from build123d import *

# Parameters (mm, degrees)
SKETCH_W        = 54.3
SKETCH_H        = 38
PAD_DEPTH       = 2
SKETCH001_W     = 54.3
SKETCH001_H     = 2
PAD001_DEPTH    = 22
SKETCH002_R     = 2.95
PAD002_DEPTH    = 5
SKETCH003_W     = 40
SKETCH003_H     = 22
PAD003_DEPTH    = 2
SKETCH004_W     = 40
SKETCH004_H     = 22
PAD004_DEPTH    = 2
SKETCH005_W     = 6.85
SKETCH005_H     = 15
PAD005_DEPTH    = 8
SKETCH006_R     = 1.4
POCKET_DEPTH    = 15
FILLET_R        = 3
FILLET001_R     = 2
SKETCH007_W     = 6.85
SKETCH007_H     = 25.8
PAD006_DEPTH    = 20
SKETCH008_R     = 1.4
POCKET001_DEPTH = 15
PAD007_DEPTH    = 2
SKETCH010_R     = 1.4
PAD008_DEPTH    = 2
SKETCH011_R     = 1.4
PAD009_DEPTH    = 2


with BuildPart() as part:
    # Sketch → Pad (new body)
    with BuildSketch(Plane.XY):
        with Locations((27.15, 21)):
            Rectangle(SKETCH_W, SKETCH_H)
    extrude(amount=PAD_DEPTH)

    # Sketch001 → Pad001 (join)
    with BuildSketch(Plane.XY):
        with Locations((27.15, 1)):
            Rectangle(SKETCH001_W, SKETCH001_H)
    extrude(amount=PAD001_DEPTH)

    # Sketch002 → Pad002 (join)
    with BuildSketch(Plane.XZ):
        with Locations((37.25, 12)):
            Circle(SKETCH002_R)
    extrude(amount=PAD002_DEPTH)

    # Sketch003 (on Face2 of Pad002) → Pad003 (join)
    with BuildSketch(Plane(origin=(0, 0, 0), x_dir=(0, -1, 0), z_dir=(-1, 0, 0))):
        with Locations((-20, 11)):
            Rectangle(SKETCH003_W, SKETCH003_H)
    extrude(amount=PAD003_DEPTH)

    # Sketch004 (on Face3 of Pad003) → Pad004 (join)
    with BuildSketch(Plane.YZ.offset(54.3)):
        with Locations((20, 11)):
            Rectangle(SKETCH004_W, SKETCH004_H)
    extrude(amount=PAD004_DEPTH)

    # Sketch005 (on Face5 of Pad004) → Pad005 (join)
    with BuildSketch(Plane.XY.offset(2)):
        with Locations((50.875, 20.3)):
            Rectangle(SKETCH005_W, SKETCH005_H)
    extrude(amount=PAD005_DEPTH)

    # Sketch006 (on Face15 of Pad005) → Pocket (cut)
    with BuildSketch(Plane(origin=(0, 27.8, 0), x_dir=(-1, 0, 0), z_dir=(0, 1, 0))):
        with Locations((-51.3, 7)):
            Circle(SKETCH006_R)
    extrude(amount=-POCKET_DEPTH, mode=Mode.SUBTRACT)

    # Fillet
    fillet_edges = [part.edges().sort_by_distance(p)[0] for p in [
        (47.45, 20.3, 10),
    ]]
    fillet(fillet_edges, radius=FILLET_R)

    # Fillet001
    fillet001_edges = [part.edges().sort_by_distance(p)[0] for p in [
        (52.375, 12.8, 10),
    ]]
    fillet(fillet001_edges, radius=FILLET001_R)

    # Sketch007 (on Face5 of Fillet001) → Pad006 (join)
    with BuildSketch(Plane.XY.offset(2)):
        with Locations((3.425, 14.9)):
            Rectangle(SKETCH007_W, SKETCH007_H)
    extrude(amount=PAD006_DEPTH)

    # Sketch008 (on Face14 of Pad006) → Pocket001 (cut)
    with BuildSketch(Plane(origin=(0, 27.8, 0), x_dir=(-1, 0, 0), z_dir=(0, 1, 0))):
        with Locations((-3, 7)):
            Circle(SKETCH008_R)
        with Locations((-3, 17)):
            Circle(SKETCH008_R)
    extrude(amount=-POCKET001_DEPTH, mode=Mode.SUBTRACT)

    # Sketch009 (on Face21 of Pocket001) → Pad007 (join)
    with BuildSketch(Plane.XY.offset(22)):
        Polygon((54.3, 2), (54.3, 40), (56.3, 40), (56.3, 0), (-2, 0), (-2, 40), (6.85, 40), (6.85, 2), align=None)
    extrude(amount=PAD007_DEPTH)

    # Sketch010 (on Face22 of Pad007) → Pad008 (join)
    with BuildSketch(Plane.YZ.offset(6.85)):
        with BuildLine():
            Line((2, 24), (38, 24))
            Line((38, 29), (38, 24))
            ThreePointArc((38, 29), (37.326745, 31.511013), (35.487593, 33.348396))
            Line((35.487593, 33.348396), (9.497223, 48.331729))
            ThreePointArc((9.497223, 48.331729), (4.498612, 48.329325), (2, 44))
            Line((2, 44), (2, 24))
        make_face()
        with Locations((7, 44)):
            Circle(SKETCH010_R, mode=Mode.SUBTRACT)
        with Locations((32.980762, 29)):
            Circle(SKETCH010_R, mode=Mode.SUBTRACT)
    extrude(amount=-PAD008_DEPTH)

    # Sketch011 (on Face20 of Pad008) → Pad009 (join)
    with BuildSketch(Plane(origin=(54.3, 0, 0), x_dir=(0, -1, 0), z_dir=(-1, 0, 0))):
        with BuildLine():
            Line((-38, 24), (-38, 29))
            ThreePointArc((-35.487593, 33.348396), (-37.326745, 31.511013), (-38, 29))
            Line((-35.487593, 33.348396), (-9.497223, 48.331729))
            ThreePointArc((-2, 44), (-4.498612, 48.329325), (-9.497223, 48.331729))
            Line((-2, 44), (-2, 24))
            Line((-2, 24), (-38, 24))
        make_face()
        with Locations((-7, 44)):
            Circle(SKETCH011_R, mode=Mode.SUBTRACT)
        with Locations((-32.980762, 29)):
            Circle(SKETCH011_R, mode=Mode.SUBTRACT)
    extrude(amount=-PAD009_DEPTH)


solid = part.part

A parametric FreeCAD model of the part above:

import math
import FreeCAD as App
import Part
import Sketcher
from FreeCAD import Vector
Q = App.Units.Quantity


def edges_at(feature, points):
    """Names of the edges that pass closest to the given points."""
    edges = feature.Shape.Edges
    near = lambda p: min(range(len(edges)), key=lambda i: edges[i].distToShape(Part.Vertex(*p))[0])
    return sorted({f"Edge{near(p) + 1}" for p in points})

doc = App.newDocument("Part")
body = doc.addObject("PartDesign::Body", "Body")

# Sketch on XY plane
sketch1 = body.newObject("Sketcher::SketchObject", "Sketch")
sketch1.AttachmentSupport = (doc.getObject("XY_Plane"), [""])
sketch1.MapMode = "FlatFace"
sketch1.addGeometry(Part.LineSegment(Vector(0, 40, 0), Vector(0, 2, 0)), False)
sketch1.addGeometry(Part.LineSegment(Vector(0, 2, 0), Vector(54, 2, 0)), False)
sketch1.addGeometry(Part.LineSegment(Vector(54, 2, 0), Vector(54, 40, 0)), False)
sketch1.addGeometry(Part.LineSegment(Vector(54, 40, 0), Vector(0, 40, 0)), False)
sketch1.addConstraint(Sketcher.Constraint("Coincident", 0, 2, 1, 1))
sketch1.addConstraint(Sketcher.Constraint("Coincident", 1, 2, 2, 1))
sketch1.addConstraint(Sketcher.Constraint("Coincident", 2, 2, 3, 1))
sketch1.addConstraint(Sketcher.Constraint("Coincident", 3, 2, 0, 1))
sketch1.addConstraint(Sketcher.Constraint("Vertical", 0))
sketch1.addConstraint(Sketcher.Constraint("Horizontal", 1))
sketch1.addConstraint(Sketcher.Constraint("Vertical", 2))
sketch1.addConstraint(Sketcher.Constraint("Horizontal", 3))
sketch1.addConstraint(Sketcher.Constraint("PointOnObject", 0, 2, -2))
sketch1.addConstraint(Sketcher.Constraint("DistanceY", 0, 2, 0, 1, Q("38 mm")))
sketch1.addConstraint(Sketcher.Constraint("DistanceX", 1, 1, 1, 2, Q("54.3 mm")))
sketch1.addConstraint(Sketcher.Constraint("DistanceY", -1, 1, 0, 2, Q("2 mm")))
pad1 = body.newObject("PartDesign::Pad", "Pad")
pad1.Profile = sketch1
pad1.Length = 2

# Sketch on XY plane
sketch2 = body.newObject("Sketcher::SketchObject", "Sketch001")
sketch2.AttachmentSupport = (doc.getObject("XY_Plane"), [""])
sketch2.MapMode = "FlatFace"
sketch2.addGeometry(Part.LineSegment(Vector(0, 2, 0), Vector(0, 0, 0)), False)
sketch2.addGeometry(Part.LineSegment(Vector(0, 0, 0), Vector(54.3, 0, 0)), False)
sketch2.addGeometry(Part.LineSegment(Vector(54.3, 0, 0), Vector(54.3, 2, 0)), False)
sketch2.addGeometry(Part.LineSegment(Vector(54.3, 2, 0), Vector(0, 2, 0)), False)
sketch2.addConstraint(Sketcher.Constraint("Coincident", 0, 2, 1, 1))
sketch2.addConstraint(Sketcher.Constraint("Coincident", 1, 2, 2, 1))
sketch2.addConstraint(Sketcher.Constraint("Coincident", 2, 2, 3, 1))
sketch2.addConstraint(Sketcher.Constraint("Coincident", 3, 2, 0, 1))
sketch2.addConstraint(Sketcher.Constraint("Vertical", 0))
sketch2.addConstraint(Sketcher.Constraint("Horizontal", 1))
sketch2.addConstraint(Sketcher.Constraint("Vertical", 2))
sketch2.addConstraint(Sketcher.Constraint("Horizontal", 3))
sketch2.addConstraint(Sketcher.Constraint("Coincident", 0, 2, -1, 1))
sketch2.addConstraint(Sketcher.Constraint("DistanceY", 0, 2, 0, 1, Q("2 mm")))
sketch2.addConstraint(Sketcher.Constraint("DistanceX", 1, 1, 1, 2, Q("54.3 mm")))
pad2 = body.newObject("PartDesign::Pad", "Pad001")
pad2.Profile = sketch2
pad2.Length = 22

# Sketch on XZ plane
sketch3 = body.newObject("Sketcher::SketchObject", "Sketch002")
sketch3.AttachmentSupport = (doc.getObject("XZ_Plane"), [""])
sketch3.MapMode = "FlatFace"
sketch3.addGeometry(Part.Circle(Vector(37.2, 12, 0), Vector(0, 0, 1), 3), False)
sketch3.addConstraint(Sketcher.Constraint("Diameter", 0, Q("5.9 mm")))
sketch3.addConstraint(Sketcher.Constraint("DistanceY", -1, 1, 0, 3, Q("12 mm")))
sketch3.addConstraint(Sketcher.Constraint("DistanceX", -1, 1, 0, 3, Q("37.25 mm")))
pad3 = body.newObject("PartDesign::Pad", "Pad002")
pad3.Profile = sketch3
pad3.Length = 5

# Sketch on YZ plane
sketch4 = body.newObject("Sketcher::SketchObject", "Sketch003")
sketch4.AttachmentSupport = (doc.getObject("YZ_Plane"), [""])
sketch4.MapMode = "FlatFace"
sketch4.addGeometry(Part.LineSegment(Vector(40, 22, 0), Vector(40, 0, 0)), False)
sketch4.addGeometry(Part.LineSegment(Vector(40, 0, 0), Vector(0, 0, 0)), False)
sketch4.addGeometry(Part.LineSegment(Vector(0, 0, 0), Vector(0, 22, 0)), False)
sketch4.addGeometry(Part.LineSegment(Vector(0, 22, 0), Vector(40, 22, 0)), False)
sketch4.addConstraint(Sketcher.Constraint("Coincident", 0, 2, 1, 1))
sketch4.addConstraint(Sketcher.Constraint("Coincident", 1, 2, 2, 1))
sketch4.addConstraint(Sketcher.Constraint("Coincident", 2, 2, 3, 1))
sketch4.addConstraint(Sketcher.Constraint("Coincident", 3, 2, 0, 1))
sketch4.addConstraint(Sketcher.Constraint("Vertical", 0))
sketch4.addConstraint(Sketcher.Constraint("Horizontal", 1))
sketch4.addConstraint(Sketcher.Constraint("Vertical", 2))
sketch4.addConstraint(Sketcher.Constraint("Horizontal", 3))
sketch4.addConstraint(Sketcher.Constraint("Coincident", 1, 2, -1, 1))
sketch4.addConstraint(Sketcher.Constraint("DistanceX", 1, 2, 1, 1, Q("40 mm")))
sketch4.addConstraint(Sketcher.Constraint("DistanceY", 0, 2, 0, 1, Q("22 mm")))
pad4 = body.newObject("PartDesign::Pad", "Pad003")
pad4.Profile = sketch4
pad4.Length = 2
pad4.Reversed = True

# Sketch on YZ plane
sketch5 = body.newObject("Sketcher::SketchObject", "Sketch004")
sketch5.AttachmentSupport = (doc.getObject("YZ_Plane"), [""])
sketch5.MapMode = "FlatFace"
sketch5.AttachmentOffset = App.Placement(Vector(0, 0, 54.3), App.Rotation())
sketch5.addGeometry(Part.LineSegment(Vector(0, 22, 0), Vector(0, 0, 0)), False)
sketch5.addGeometry(Part.LineSegment(Vector(0, 0, 0), Vector(40, 0, 0)), False)
sketch5.addGeometry(Part.LineSegment(Vector(40, 0, 0), Vector(40, 22, 0)), False)
sketch5.addGeometry(Part.LineSegment(Vector(40, 22, 0), Vector(0, 22, 0)), False)
sketch5.addConstraint(Sketcher.Constraint("Coincident", 0, 2, 1, 1))
sketch5.addConstraint(Sketcher.Constraint("Coincident", 1, 2, 2, 1))
sketch5.addConstraint(Sketcher.Constraint("Coincident", 2, 2, 3, 1))
sketch5.addConstraint(Sketcher.Constraint("Coincident", 3, 2, 0, 1))
sketch5.addConstraint(Sketcher.Constraint("Vertical", 0))
sketch5.addConstraint(Sketcher.Constraint("Horizontal", 1))
sketch5.addConstraint(Sketcher.Constraint("Vertical", 2))
sketch5.addConstraint(Sketcher.Constraint("Horizontal", 3))
sketch5.addConstraint(Sketcher.Constraint("Coincident", 0, 2, -1, 1))
sketch5.addConstraint(Sketcher.Constraint("DistanceX", 1, 1, 1, 2, Q("40 mm")))
sketch5.addConstraint(Sketcher.Constraint("DistanceY", 0, 2, 0, 1, Q("22 mm")))
pad5 = body.newObject("PartDesign::Pad", "Pad004")
pad5.Profile = sketch5
pad5.Length = 2

# Sketch on XY plane
sketch6 = body.newObject("Sketcher::SketchObject", "Sketch005")
sketch6.AttachmentSupport = (doc.getObject("XY_Plane"), [""])
sketch6.MapMode = "FlatFace"
sketch6.AttachmentOffset = App.Placement(Vector(0, 0, 2), App.Rotation())
sketch6.addGeometry(Part.LineSegment(Vector(47, 28, 0), Vector(47, 13, 0)), False)
sketch6.addGeometry(Part.LineSegment(Vector(47, 13, 0), Vector(54, 13, 0)), False)
sketch6.addGeometry(Part.LineSegment(Vector(54, 13, 0), Vector(54, 28, 0)), False)
sketch6.addGeometry(Part.LineSegment(Vector(54, 28, 0), Vector(47, 28, 0)), False)
sketch6.addConstraint(Sketcher.Constraint("Coincident", 0, 2, 1, 1))
sketch6.addConstraint(Sketcher.Constraint("Coincident", 1, 2, 2, 1))
sketch6.addConstraint(Sketcher.Constraint("Coincident", 2, 2, 3, 1))
sketch6.addConstraint(Sketcher.Constraint("Coincident", 3, 2, 0, 1))
sketch6.addConstraint(Sketcher.Constraint("Vertical", 0))
sketch6.addConstraint(Sketcher.Constraint("Horizontal", 1))
sketch6.addConstraint(Sketcher.Constraint("Vertical", 2))
sketch6.addConstraint(Sketcher.Constraint("Horizontal", 3))
sketch6.addConstraint(Sketcher.Constraint("DistanceY", 0, 2, 0, 1, Q("15 mm")))
sketch6.addConstraint(Sketcher.Constraint("DistanceX", 1, 1, 1, 2, Q("6.85 mm")))
sketch6.addConstraint(Sketcher.Constraint("DistanceY", -1, 1, 0, 2, Q("12.8 mm")))
sketch6.addConstraint(Sketcher.Constraint("DistanceX", -1, 1, 1, 2, Q("54.3 mm")))
pad6 = body.newObject("PartDesign::Pad", "Pad005")
pad6.Profile = sketch6
pad6.Length = 8

# Sketch on XZ plane
sketch7 = body.newObject("Sketcher::SketchObject", "Sketch006")
sketch7.AttachmentSupport = (doc.getObject("XZ_Plane"), [""])
sketch7.MapMode = "FlatFace"
sketch7.AttachmentOffset = App.Placement(Vector(0, 0, -27.8), App.Rotation())
sketch7.addGeometry(Part.Circle(Vector(51.3, 7, 0), Vector(0, 0, 1), 1.4), False)
sketch7.addConstraint(Sketcher.Constraint("Diameter", 0, Q("2.8 mm")))
sketch7.addConstraint(Sketcher.Constraint("DistanceY", -1, 1, 0, 3, Q("7 mm")))
sketch7.addConstraint(Sketcher.Constraint("DistanceX", -1, 1, 0, 3, Q("51.3 mm")))
pocket1 = body.newObject("PartDesign::Pocket", "Pocket")
pocket1.Profile = sketch7
pocket1.Length = 15
pocket1.Reversed = True
doc.recompute()

fillet = body.newObject("PartDesign::Fillet", "Fillet")
fillet.Base = (pocket1, edges_at(pocket1, [(47.45, 20.3, 10)]))
fillet.Radius = 3
doc.recompute()

fillet2 = body.newObject("PartDesign::Fillet", "Fillet001")
fillet2.Base = (fillet, edges_at(fillet, [(52.375, 12.8, 10)]))
fillet2.Radius = 2

# Sketch on XY plane
sketch8 = body.newObject("Sketcher::SketchObject", "Sketch007")
sketch8.AttachmentSupport = (doc.getObject("XY_Plane"), [""])
sketch8.MapMode = "FlatFace"
sketch8.AttachmentOffset = App.Placement(Vector(0, 0, 2), App.Rotation())
sketch8.addGeometry(Part.LineSegment(Vector(0, 28, 0), Vector(0, 2, 0)), False)
sketch8.addGeometry(Part.LineSegment(Vector(0, 2, 0), Vector(7, 2, 0)), False)
sketch8.addGeometry(Part.LineSegment(Vector(7, 2, 0), Vector(7, 28, 0)), False)
sketch8.addGeometry(Part.LineSegment(Vector(7, 28, 0), Vector(0, 28, 0)), False)
sketch8.addConstraint(Sketcher.Constraint("Coincident", 0, 2, 1, 1))
sketch8.addConstraint(Sketcher.Constraint("Coincident", 1, 2, 2, 1))
sketch8.addConstraint(Sketcher.Constraint("Coincident", 2, 2, 3, 1))
sketch8.addConstraint(Sketcher.Constraint("Coincident", 3, 2, 0, 1))
sketch8.addConstraint(Sketcher.Constraint("Vertical", 0))
sketch8.addConstraint(Sketcher.Constraint("Horizontal", 1))
sketch8.addConstraint(Sketcher.Constraint("Vertical", 2))
sketch8.addConstraint(Sketcher.Constraint("Horizontal", 3))
sketch8.addConstraint(Sketcher.Constraint("PointOnObject", 0, 2, -2))
sketch8.addConstraint(Sketcher.Constraint("DistanceY", 0, 2, 0, 1, Q("25.8 mm")))
sketch8.addConstraint(Sketcher.Constraint("DistanceY", -1, 1, 0, 2, Q("2 mm")))
sketch8.addConstraint(Sketcher.Constraint("DistanceX", 1, 1, 1, 2, Q("6.85 mm")))
pad7 = body.newObject("PartDesign::Pad", "Pad006")
pad7.Profile = sketch8
pad7.Length = 20

# Sketch on XZ plane
sketch9 = body.newObject("Sketcher::SketchObject", "Sketch008")
sketch9.AttachmentSupport = (doc.getObject("XZ_Plane"), [""])
sketch9.MapMode = "FlatFace"
sketch9.AttachmentOffset = App.Placement(Vector(0, 0, -27.8), App.Rotation())
sketch9.addGeometry(Part.Circle(Vector(3, 7, 0), Vector(0, 0, 1), 1.4), False)
sketch9.addGeometry(Part.Circle(Vector(3, 17, 0), Vector(0, 0, 1), 1.4), False)
sketch9.addConstraint(Sketcher.Constraint("Equal", 0, 1))
sketch9.addConstraint(Sketcher.Constraint("Vertical", 0, 3, 1, 3))
sketch9.addConstraint(Sketcher.Constraint("Diameter", 0, Q("2.8 mm")))
sketch9.addConstraint(Sketcher.Constraint("DistanceX", -1, 1, 0, 3, Q("3 mm")))
sketch9.addConstraint(Sketcher.Constraint("DistanceY", -1, 1, 0, 3, Q("7 mm")))
sketch9.addConstraint(Sketcher.Constraint("DistanceY", -1, 1, 1, 3, Q("17 mm")))
pocket2 = body.newObject("PartDesign::Pocket", "Pocket001")
pocket2.Profile = sketch9
pocket2.Length = 15
pocket2.Reversed = True

# Sketch on XY plane
sketch10 = body.newObject("Sketcher::SketchObject", "Sketch009")
sketch10.AttachmentSupport = (doc.getObject("XY_Plane"), [""])
sketch10.MapMode = "FlatFace"
sketch10.AttachmentOffset = App.Placement(Vector(0, 0, 22), App.Rotation())
sketch10.addGeometry(Part.LineSegment(Vector(54.3, 40, 0), Vector(54.3, 2, 0)), False)
sketch10.addGeometry(Part.LineSegment(Vector(54.3, 2, 0), Vector(6.8, 2, 0)), False)
sketch10.addGeometry(Part.LineSegment(Vector(6.8, 2, 0), Vector(6.8, 40, 0)), False)
sketch10.addGeometry(Part.LineSegment(Vector(6.8, 40, 0), Vector(-2, 40, 0)), False)
sketch10.addGeometry(Part.LineSegment(Vector(-2, 40, 0), Vector(-2, 0, 0)), False)
sketch10.addGeometry(Part.LineSegment(Vector(-2, 0, 0), Vector(56.3, 0, 0)), False)
sketch10.addGeometry(Part.LineSegment(Vector(56.3, 0, 0), Vector(56.3, 40, 0)), False)
sketch10.addGeometry(Part.LineSegment(Vector(56.3, 40, 0), Vector(54.3, 40, 0)), False)
sketch10.addConstraint(Sketcher.Constraint("Coincident", 0, 2, 1, 1))
sketch10.addConstraint(Sketcher.Constraint("Coincident", 1, 2, 2, 1))
sketch10.addConstraint(Sketcher.Constraint("Coincident", 2, 2, 3, 1))
sketch10.addConstraint(Sketcher.Constraint("Coincident", 3, 2, 4, 1))
sketch10.addConstraint(Sketcher.Constraint("Coincident", 4, 2, 5, 1))
sketch10.addConstraint(Sketcher.Constraint("Coincident", 5, 2, 6, 1))
sketch10.addConstraint(Sketcher.Constraint("Coincident", 6, 2, 7, 1))
sketch10.addConstraint(Sketcher.Constraint("Coincident", 7, 2, 0, 1))
sketch10.addConstraint(Sketcher.Constraint("Vertical", 0))
sketch10.addConstraint(Sketcher.Constraint("Horizontal", 1))
sketch10.addConstraint(Sketcher.Constraint("Vertical", 2))
sketch10.addConstraint(Sketcher.Constraint("Horizontal", 3))
sketch10.addConstraint(Sketcher.Constraint("Vertical", 4))
sketch10.addConstraint(Sketcher.Constraint("Horizontal", 5))
sketch10.addConstraint(Sketcher.Constraint("Vertical", 6))
sketch10.addConstraint(Sketcher.Constraint("Horizontal", 7))
sketch10.addConstraint(Sketcher.Constraint("PointOnObject", 4, 2, -1))
sketch10.addConstraint(Sketcher.Constraint("Horizontal", 3, 2, 6, 2))
sketch10.addConstraint(Sketcher.Constraint("DistanceX", 7, 2, 7, 1, Q("2 mm")))
sketch10.addConstraint(Sketcher.Constraint("DistanceY", 0, 2, 0, 1, Q("38 mm")))
sketch10.addConstraint(Sketcher.Constraint("DistanceY", 4, 2, 4, 1, Q("40 mm")))
sketch10.addConstraint(Sketcher.Constraint("DistanceX", 5, 1, 5, 2, Q("58.3 mm")))
sketch10.addConstraint(Sketcher.Constraint("DistanceX", 3, 2, -1, 1, Q("2 mm")))
sketch10.addConstraint(Sketcher.Constraint("DistanceX", 1, 2, 1, 1, Q("47.45 mm")))
pad8 = body.newObject("PartDesign::Pad", "Pad007")
pad8.Profile = sketch10
pad8.Length = 2

# Sketch on YZ plane
sketch11 = body.newObject("Sketcher::SketchObject", "Sketch010")
sketch11.AttachmentSupport = (doc.getObject("YZ_Plane"), [""])
sketch11.MapMode = "FlatFace"
sketch11.AttachmentOffset = App.Placement(Vector(0, 0, 6.85), App.Rotation())
sketch11.addGeometry(Part.LineSegment(Vector(2, 24, 0), Vector(38, 24, 0)), False)
sketch11.addGeometry(Part.LineSegment(Vector(38, 24, 0), Vector(38, 29, 0)), False)
sketch11.addGeometry(Part.ArcOfCircle(Part.Circle(Vector(33, 29, 0), Vector(0, 0, 1), 5), math.radians(0), math.radians(60)), False)
sketch11.addGeometry(Part.LineSegment(Vector(35.5, 33.3, 0), Vector(9.5, 48.3, 0)), False)
sketch11.addGeometry(Part.ArcOfCircle(Part.Circle(Vector(7, 44, 0), Vector(0, 0, 1), 5), math.radians(60), math.radians(180)), False)
sketch11.addGeometry(Part.LineSegment(Vector(2, 44, 0), Vector(2, 24, 0)), False)
sketch11.addGeometry(Part.Circle(Vector(33, 29, 0), Vector(0, 0, 1), 1.4), False)
sketch11.addGeometry(Part.Circle(Vector(7, 44, 0), Vector(0, 0, 1), 1.4), False)
sketch11.addConstraint(Sketcher.Constraint("Coincident", 0, 2, 1, 1))
sketch11.addConstraint(Sketcher.Constraint("Tangent", 1, 2, 2, 1))
sketch11.addConstraint(Sketcher.Constraint("Tangent", 2, 2, 3, 1))
sketch11.addConstraint(Sketcher.Constraint("Tangent", 3, 2, 4, 1))
sketch11.addConstraint(Sketcher.Constraint("Tangent", 4, 2, 5, 1))
sketch11.addConstraint(Sketcher.Constraint("Coincident", 5, 2, 0, 1))
sketch11.addConstraint(Sketcher.Constraint("Horizontal", 0))
sketch11.addConstraint(Sketcher.Constraint("Vertical", 1))
sketch11.addConstraint(Sketcher.Constraint("Vertical", 5))
sketch11.addConstraint(Sketcher.Constraint("Coincident", 6, 3, 2, 3))
sketch11.addConstraint(Sketcher.Constraint("Coincident", 7, 3, 4, 3))
sketch11.addConstraint(Sketcher.Constraint("Equal", 6, 7))
sketch11.addConstraint(Sketcher.Constraint("Radius", 4, Q("5 mm")))
sketch11.addConstraint(Sketcher.Constraint("Diameter", 6, Q("2.8 mm")))
sketch11.addConstraint(Sketcher.Constraint("DistanceX", 0, 1, 0, 2, Q("36 mm")))
sketch11.addConstraint(Sketcher.Constraint("DistanceY", 1, 1, 1, 2, Q("5 mm")))
sketch11.addConstraint(Sketcher.Constraint("DistanceY", 5, 2, 5, 1, Q("20 mm")))
sketch11.addConstraint(Sketcher.Constraint("DistanceY", -1, 1, 2, 3, Q("29.000002 mm")))
sketch11.addConstraint(Sketcher.Constraint("DistanceX", -1, 1, 4, 3, Q("7 mm")))
sketch11.addConstraint(Sketcher.Constraint("Radius", 2, Q("5.019235 mm")))
pad9 = body.newObject("PartDesign::Pad", "Pad008")
pad9.Profile = sketch11
pad9.Length = 2
pad9.Reversed = True

# Sketch on YZ plane
sketch12 = body.newObject("Sketcher::SketchObject", "Sketch011")
sketch12.AttachmentSupport = (doc.getObject("YZ_Plane"), [""])
sketch12.MapMode = "FlatFace"
sketch12.AttachmentOffset = App.Placement(Vector(0, 0, 54.3), App.Rotation())
sketch12.addGeometry(Part.LineSegment(Vector(38, 29, 0), Vector(38, 24, 0)), False)
sketch12.addGeometry(Part.LineSegment(Vector(38, 24, 0), Vector(2, 24, 0)), False)
sketch12.addGeometry(Part.LineSegment(Vector(2, 24, 0), Vector(2, 44, 0)), False)
sketch12.addGeometry(Part.ArcOfCircle(Part.Circle(Vector(7, 44, 0), Vector(0, 0, 1), 5), math.radians(60), math.radians(180)), False)
sketch12.addGeometry(Part.LineSegment(Vector(9.5, 48.3, 0), Vector(35.5, 33.3, 0)), False)
sketch12.addGeometry(Part.ArcOfCircle(Part.Circle(Vector(33, 29, 0), Vector(0, 0, 1), 5), math.radians(0), math.radians(60)), False)
sketch12.addGeometry(Part.Circle(Vector(33, 29, 0), Vector(0, 0, 1), 1.4), False)
sketch12.addGeometry(Part.Circle(Vector(7, 44, 0), Vector(0, 0, 1), 1.4), False)
sketch12.addConstraint(Sketcher.Constraint("Coincident", 0, 2, 1, 1))
sketch12.addConstraint(Sketcher.Constraint("Coincident", 1, 2, 2, 1))
sketch12.addConstraint(Sketcher.Constraint("Tangent", 2, 2, 3, 2))
sketch12.addConstraint(Sketcher.Constraint("Tangent", 3, 1, 4, 1))
sketch12.addConstraint(Sketcher.Constraint("Tangent", 4, 2, 5, 2))
sketch12.addConstraint(Sketcher.Constraint("Tangent", 5, 1, 0, 1))
sketch12.addConstraint(Sketcher.Constraint("Vertical", 0))
sketch12.addConstraint(Sketcher.Constraint("Horizontal", 1))
sketch12.addConstraint(Sketcher.Constraint("Vertical", 2))
sketch12.addConstraint(Sketcher.Constraint("Coincident", 6, 3, 5, 3))
sketch12.addConstraint(Sketcher.Constraint("Coincident", 7, 3, 3, 3))
sketch12.addConstraint(Sketcher.Constraint("Equal", 6, 7))
sketch12.addConstraint(Sketcher.Constraint("Radius", 3, Q("5 mm")))
sketch12.addConstraint(Sketcher.Constraint("Diameter", 6, Q("2.8 mm")))
sketch12.addConstraint(Sketcher.Constraint("DistanceX", 1, 2, 1, 1, Q("36 mm")))
sketch12.addConstraint(Sketcher.Constraint("DistanceY", 0, 2, 0, 1, Q("5 mm")))
sketch12.addConstraint(Sketcher.Constraint("DistanceY", 2, 1, 2, 2, Q("20 mm")))
sketch12.addConstraint(Sketcher.Constraint("DistanceX", -1, 1, 3, 3, Q("7 mm")))
sketch12.addConstraint(Sketcher.Constraint("DistanceY", -1, 1, 3, 3, Q("44 mm")))
sketch12.addConstraint(Sketcher.Constraint("Radius", 5, Q("5.019235 mm")))
pad10 = body.newObject("PartDesign::Pad", "Pad009")
pad10.Profile = sketch12
pad10.Length = 2

doc.recompute()
